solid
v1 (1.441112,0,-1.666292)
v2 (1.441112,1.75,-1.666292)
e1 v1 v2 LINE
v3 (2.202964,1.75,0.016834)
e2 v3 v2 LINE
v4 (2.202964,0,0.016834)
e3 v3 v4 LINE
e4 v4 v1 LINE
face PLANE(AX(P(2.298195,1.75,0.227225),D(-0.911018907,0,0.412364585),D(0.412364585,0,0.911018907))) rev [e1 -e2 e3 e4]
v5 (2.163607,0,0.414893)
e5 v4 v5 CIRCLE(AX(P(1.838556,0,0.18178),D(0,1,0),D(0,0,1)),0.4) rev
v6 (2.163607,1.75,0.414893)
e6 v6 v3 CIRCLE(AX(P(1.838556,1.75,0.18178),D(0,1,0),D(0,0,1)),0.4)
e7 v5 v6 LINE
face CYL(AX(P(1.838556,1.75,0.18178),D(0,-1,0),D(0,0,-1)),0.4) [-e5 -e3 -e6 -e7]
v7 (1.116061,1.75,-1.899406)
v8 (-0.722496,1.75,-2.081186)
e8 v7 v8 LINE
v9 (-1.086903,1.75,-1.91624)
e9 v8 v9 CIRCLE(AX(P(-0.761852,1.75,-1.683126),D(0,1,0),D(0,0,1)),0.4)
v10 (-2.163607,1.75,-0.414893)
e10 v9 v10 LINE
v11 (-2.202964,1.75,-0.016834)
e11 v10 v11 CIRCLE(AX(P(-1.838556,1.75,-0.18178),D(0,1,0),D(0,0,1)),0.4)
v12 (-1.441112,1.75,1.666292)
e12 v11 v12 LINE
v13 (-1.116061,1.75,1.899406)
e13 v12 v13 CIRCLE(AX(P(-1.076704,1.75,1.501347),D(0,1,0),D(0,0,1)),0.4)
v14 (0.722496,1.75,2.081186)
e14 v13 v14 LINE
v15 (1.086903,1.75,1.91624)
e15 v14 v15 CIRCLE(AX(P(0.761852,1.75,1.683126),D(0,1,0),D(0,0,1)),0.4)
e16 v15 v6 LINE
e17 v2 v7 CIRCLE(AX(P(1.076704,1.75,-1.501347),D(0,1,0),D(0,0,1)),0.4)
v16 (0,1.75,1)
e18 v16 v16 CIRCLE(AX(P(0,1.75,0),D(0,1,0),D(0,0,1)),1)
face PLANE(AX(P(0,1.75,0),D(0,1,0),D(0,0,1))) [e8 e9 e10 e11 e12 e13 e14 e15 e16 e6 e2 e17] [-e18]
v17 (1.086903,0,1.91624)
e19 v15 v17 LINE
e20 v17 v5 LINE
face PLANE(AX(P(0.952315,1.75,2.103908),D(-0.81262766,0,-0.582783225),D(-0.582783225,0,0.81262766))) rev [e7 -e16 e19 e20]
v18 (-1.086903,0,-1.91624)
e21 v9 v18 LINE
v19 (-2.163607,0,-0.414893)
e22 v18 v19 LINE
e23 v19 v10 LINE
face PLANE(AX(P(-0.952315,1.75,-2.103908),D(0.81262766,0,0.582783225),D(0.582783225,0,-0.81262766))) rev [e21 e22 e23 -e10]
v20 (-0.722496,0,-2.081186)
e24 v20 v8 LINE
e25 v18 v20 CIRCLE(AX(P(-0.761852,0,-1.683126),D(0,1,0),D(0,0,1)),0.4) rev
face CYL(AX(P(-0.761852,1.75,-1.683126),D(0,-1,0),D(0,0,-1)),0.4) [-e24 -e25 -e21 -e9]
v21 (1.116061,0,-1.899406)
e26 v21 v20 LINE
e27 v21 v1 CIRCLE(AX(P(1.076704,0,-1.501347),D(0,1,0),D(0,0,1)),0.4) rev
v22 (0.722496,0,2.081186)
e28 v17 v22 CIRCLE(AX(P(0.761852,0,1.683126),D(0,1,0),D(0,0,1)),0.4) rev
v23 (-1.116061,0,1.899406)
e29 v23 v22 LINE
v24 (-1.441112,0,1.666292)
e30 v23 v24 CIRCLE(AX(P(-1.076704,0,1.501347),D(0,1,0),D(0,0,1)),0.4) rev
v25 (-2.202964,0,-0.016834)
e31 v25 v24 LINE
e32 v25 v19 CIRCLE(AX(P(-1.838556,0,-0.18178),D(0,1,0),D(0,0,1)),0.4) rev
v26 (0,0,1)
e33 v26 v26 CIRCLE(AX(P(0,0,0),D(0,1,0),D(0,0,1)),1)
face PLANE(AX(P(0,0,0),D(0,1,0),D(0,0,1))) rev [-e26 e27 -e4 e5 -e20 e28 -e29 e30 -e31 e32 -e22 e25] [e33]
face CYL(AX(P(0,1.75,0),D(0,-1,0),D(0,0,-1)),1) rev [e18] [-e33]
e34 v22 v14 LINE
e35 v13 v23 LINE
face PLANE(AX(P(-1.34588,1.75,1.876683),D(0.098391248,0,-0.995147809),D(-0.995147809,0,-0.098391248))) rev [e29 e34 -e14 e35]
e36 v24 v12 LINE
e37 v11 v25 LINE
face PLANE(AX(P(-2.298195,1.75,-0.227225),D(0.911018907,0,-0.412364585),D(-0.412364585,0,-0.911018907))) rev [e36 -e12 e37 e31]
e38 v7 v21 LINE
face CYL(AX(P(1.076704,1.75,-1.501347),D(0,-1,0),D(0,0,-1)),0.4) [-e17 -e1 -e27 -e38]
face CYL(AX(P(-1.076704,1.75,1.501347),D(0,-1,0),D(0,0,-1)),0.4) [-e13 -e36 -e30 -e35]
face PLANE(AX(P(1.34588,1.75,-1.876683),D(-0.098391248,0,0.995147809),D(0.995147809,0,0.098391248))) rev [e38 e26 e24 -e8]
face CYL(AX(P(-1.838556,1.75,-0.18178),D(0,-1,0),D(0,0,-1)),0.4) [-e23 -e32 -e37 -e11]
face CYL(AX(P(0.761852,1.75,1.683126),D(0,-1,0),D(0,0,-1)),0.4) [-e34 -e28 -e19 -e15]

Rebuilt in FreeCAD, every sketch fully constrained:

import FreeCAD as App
import Part
import Sketcher
Q = App.Units.Quantity


def edges_at(feature, points):
    """Names of the edges that pass closest to the given points."""
    edges = feature.Shape.Edges
    near = lambda p: min(range(len(edges)), key=lambda i: edges[i].distToShape(Part.Vertex(*p))[0])
    return sorted({f"Edge{near(p) + 1}" for p in points})


def add_polygon(sketch, points):
    """Adds a closed chain of lines whose ends are joined by coincident constraints."""
    first, n = sketch.GeometryCount, len(points)
    for a, b in zip(points, points[1:] + points[:1]):
        sketch.addGeometry(Part.LineSegment(App.Vector(*a, 0), App.Vector(*b, 0)), False)
    for i in range(n):
        sketch.addConstraint(Sketcher.Constraint("Coincident", first + i, 2, first + (i + 1) % n, 1))

doc = App.newDocument("Part")
body = doc.addObject("PartDesign::Body", "Body")

sketch1 = body.newObject("Sketcher::SketchObject", "Sketch")
sketch1.AttachmentSupport = (doc.getObject("XZ_Plane"), [""])
sketch1.MapMode = "FlatFace"
add_polygon(sketch1, [(1, 2.1), (2.3, 0.2), (1.3, -1.9), (-1, -2.1), (-2.3, -0.2), (-1.3, 1.9)])
sketch1.addConstraint([
    Sketcher.Constraint("Symmetric", 0, 2, 3, 2, -1, 1),
    Sketcher.Constraint("Symmetric", 1, 2, 4, 2, -1, 1),
    Sketcher.Constraint("Symmetric", 2, 2, 5, 2, -1, 1),
    Sketcher.Constraint("Equal", 0, 1),
    Sketcher.Constraint("Equal", 1, 2),
    Sketcher.Constraint("Distance", 0, Q("2.309401 mm")),
    Sketcher.Constraint("DistanceX", -1, 1, 1, 2, Q("1.34588 mm")),
    Sketcher.Constraint("DistanceY", 2, 2, -1, 1, Q("2.103908 mm")),
    Sketcher.Constraint("DistanceY", 1, 2, 0, 2, Q("2.103908 mm")),
])
pad1 = body.newObject("PartDesign::Pad", "Pad")
pad1.Profile = sketch1
pad1.Length = 1.75
pad1.Reversed = True
doc.recompute()

fillet = body.newObject("PartDesign::Fillet", "Fillet")
fillet.Base = (pad1, edges_at(pad1, [
    (-1.346, 0.875, 1.877),
    (-2.298, 0.875, -0.227),
    (-0.952, 0.875, -2.104),
    (1.346, 0.875, -1.877),
    (2.298, 0.875, 0.227),
    (0.952, 0.875, 2.104),
]))
fillet.Radius = 0.4

sketch2 = body.newObject("Sketcher::SketchObject", "Sketch001")
sketch2.AttachmentSupport = (doc.getObject("XZ_Plane"), [""])
sketch2.MapMode = "FlatFace"
sketch2.addGeometry(Part.Circle(App.Vector(0, 0, 0), App.Vector(0, 0, 1), 1), False)
sketch2.addConstraint([
    Sketcher.Constraint("Coincident", 0, 3, -1, 1),
    Sketcher.Constraint("Diameter", 0, Q("2 mm")),
])
pocket1 = body.newObject("PartDesign::Pocket", "Pocket")
pocket1.Profile = sketch2
pocket1.Type = "ThroughAll"

doc.recompute()
